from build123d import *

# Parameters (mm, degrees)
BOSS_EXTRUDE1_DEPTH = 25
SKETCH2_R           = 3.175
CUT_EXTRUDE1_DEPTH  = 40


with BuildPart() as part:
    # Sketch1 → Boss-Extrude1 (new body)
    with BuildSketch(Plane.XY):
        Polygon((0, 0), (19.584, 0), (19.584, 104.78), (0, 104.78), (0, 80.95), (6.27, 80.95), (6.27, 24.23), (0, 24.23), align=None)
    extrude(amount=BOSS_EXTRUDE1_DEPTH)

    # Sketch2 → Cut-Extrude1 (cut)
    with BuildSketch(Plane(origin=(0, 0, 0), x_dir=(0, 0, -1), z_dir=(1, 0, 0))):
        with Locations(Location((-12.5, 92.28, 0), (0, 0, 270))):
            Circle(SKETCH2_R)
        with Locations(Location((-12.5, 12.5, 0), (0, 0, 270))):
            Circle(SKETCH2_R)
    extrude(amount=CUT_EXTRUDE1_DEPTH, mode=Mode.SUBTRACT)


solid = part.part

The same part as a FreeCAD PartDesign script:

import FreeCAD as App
import Part
import Sketcher
from FreeCAD import Vector
Q = App.Units.Quantity

doc = App.newDocument("Part")
params = doc.addObject("Spreadsheet::Sheet", "Params")
for row, (alias, value) in enumerate([
    ("sketch1_width", "6.27 mm"),
    ("sketch1_height", "104.78 mm"),
    ("sketch1_height2", "23.83 mm"),
    ("sketch1_height3", "56.72 mm"),
    ("pad1_length", "25 mm"),
    ("sketch2_diameter", "6.35 mm"),
    ("pocket1_length", "40 mm"),
], start=1):
    params.set(f"A{row}", alias)
    params.set(f"B{row}", "=" + value)
    params.setAlias(f"B{row}", alias)

body = doc.addObject("PartDesign::Body", "Body")

sketch1 = body.newObject("Sketcher::SketchObject", "Sketch")
sketch1.AttachmentSupport = (doc.getObject("XY_Plane"), [""])
sketch1.MapMode = "FlatFace"
sketch1.addGeometry(Part.LineSegment(Vector(0, 0, 0), Vector(19.584, 0, 0)), False)
sketch1.addGeometry(Part.LineSegment(Vector(19.584, 0, 0), Vector(19.584, 104.78, 0)), False)
sketch1.addGeometry(Part.LineSegment(Vector(19.584, 104.78, 0), Vector(0, 104.78, 0)), False)
sketch1.addGeometry(Part.LineSegment(Vector(0, 104.78, 0), Vector(0, 80.95, 0)), False)
sketch1.addGeometry(Part.LineSegment(Vector(0, 80.95, 0), Vector(6.27, 80.95, 0)), False)
sketch1.addGeometry(Part.LineSegment(Vector(6.27, 80.95, 0), Vector(6.27, 24.23, 0)), False)
sketch1.addGeometry(Part.LineSegment(Vector(6.27, 24.23, 0), Vector(0, 24.23, 0)), False)
sketch1.addGeometry(Part.LineSegment(Vector(0, 24.23, 0), Vector(0, 0, 0)), False)
sketch1.addConstraint(Sketcher.Constraint("Coincident", 0, 2, 1, 1))
sketch1.addConstraint(Sketcher.Constraint("Coincident", 1, 2, 2, 1))
sketch1.addConstraint(Sketcher.Constraint("Coincident", 2, 2, 3, 1))
sketch1.addConstraint(Sketcher.Constraint("Coincident", 3, 2, 4, 1))
sketch1.addConstraint(Sketcher.Constraint("Coincident", 4, 2, 5, 1))
sketch1.addConstraint(Sketcher.Constraint("Coincident", 5, 2, 6, 1))
sketch1.addConstraint(Sketcher.Constraint("Coincident", 6, 2, 7, 1))
sketch1.addConstraint(Sketcher.Constraint("Coincident", 7, 2, 0, 1))
sketch1.addConstraint(Sketcher.Constraint("Horizontal", 0))
sketch1.addConstraint(Sketcher.Constraint("Vertical", 1))
sketch1.addConstraint(Sketcher.Constraint("Horizontal", 2))
sketch1.addConstraint(Sketcher.Constraint("Vertical", 3))
sketch1.addConstraint(Sketcher.Constraint("Horizontal", 4))
sketch1.addConstraint(Sketcher.Constraint("Vertical", 5))
sketch1.addConstraint(Sketcher.Constraint("Horizontal", 6))
sketch1.addConstraint(Sketcher.Constraint("Vertical", 7))
sketch1.addConstraint(Sketcher.Constraint("Coincident", 7, 2, -1, 1))
sketch1.addConstraint(Sketcher.Constraint("PointOnObject", 2, 2, -2))
sketch1.addConstraint(Sketcher.Constraint("DistanceX", 4, 1, 4, 2, Q("6.27 mm")))
sketch1.addConstraint(Sketcher.Constraint("DistanceY", 1, 1, 1, 2, Q("104.78 mm")))
sketch1.addConstraint(Sketcher.Constraint("DistanceY", 3, 2, 3, 1, Q("23.83 mm")))
sketch1.addConstraint(Sketcher.Constraint("DistanceY", 5, 2, 5, 1, Q("56.72 mm")))
sketch1.addConstraint(Sketcher.Constraint("DistanceX", 0, 1, 0, 2, Q("19.584 mm")))
sketch1.setExpression("Constraints[18]", "Params.sketch1_width")
sketch1.setExpression("Constraints[19]", "Params.sketch1_height")
sketch1.setExpression("Constraints[20]", "Params.sketch1_height2")
sketch1.setExpression("Constraints[21]", "Params.sketch1_height3")
pad1 = body.newObject("PartDesign::Pad", "Pad")
pad1.Profile = sketch1
pad1.setExpression("Length", "Params.pad1_length")

sketch2 = body.newObject("Sketcher::SketchObject", "Sketch001")
sketch2.AttachmentSupport = (doc.getObject("YZ_Plane"), [""])
sketch2.MapMode = "FlatFace"
sketch2.addGeometry(Part.Circle(Vector(92.28, 12.5, 0), Vector(0, 0, 1), 3.175), False)
sketch2.addGeometry(Part.Circle(Vector(12.5, 12.5, 0), Vector(0, 0, 1), 3.175), False)
sketch2.addConstraint(Sketcher.Constraint("Equal", 0, 1))
sketch2.addConstraint(Sketcher.Constraint("Horizontal", 0, 3, 1, 3))
sketch2.addConstraint(Sketcher.Constraint("Diameter", 0, Q("6.35 mm")))
sketch2.addConstraint(Sketcher.Constraint("DistanceY", -1, 1, 0, 3, Q("12.5 mm")))
sketch2.addConstraint(Sketcher.Constraint("DistanceX", -1, 1, 1, 3, Q("12.5 mm")))
sketch2.addConstraint(Sketcher.Constraint("DistanceX", -1, 1, 0, 3, Q("92.28 mm")))
sketch2.setExpression("Constraints[2]", "Params.sketch2_diameter")
pocket1 = body.newObject("PartDesign::Pocket", "Pocket")
pocket1.Profile = sketch2
pocket1.setExpression("Length", "Params.pocket1_length")
pocket1.Reversed = True

doc.recompute()
